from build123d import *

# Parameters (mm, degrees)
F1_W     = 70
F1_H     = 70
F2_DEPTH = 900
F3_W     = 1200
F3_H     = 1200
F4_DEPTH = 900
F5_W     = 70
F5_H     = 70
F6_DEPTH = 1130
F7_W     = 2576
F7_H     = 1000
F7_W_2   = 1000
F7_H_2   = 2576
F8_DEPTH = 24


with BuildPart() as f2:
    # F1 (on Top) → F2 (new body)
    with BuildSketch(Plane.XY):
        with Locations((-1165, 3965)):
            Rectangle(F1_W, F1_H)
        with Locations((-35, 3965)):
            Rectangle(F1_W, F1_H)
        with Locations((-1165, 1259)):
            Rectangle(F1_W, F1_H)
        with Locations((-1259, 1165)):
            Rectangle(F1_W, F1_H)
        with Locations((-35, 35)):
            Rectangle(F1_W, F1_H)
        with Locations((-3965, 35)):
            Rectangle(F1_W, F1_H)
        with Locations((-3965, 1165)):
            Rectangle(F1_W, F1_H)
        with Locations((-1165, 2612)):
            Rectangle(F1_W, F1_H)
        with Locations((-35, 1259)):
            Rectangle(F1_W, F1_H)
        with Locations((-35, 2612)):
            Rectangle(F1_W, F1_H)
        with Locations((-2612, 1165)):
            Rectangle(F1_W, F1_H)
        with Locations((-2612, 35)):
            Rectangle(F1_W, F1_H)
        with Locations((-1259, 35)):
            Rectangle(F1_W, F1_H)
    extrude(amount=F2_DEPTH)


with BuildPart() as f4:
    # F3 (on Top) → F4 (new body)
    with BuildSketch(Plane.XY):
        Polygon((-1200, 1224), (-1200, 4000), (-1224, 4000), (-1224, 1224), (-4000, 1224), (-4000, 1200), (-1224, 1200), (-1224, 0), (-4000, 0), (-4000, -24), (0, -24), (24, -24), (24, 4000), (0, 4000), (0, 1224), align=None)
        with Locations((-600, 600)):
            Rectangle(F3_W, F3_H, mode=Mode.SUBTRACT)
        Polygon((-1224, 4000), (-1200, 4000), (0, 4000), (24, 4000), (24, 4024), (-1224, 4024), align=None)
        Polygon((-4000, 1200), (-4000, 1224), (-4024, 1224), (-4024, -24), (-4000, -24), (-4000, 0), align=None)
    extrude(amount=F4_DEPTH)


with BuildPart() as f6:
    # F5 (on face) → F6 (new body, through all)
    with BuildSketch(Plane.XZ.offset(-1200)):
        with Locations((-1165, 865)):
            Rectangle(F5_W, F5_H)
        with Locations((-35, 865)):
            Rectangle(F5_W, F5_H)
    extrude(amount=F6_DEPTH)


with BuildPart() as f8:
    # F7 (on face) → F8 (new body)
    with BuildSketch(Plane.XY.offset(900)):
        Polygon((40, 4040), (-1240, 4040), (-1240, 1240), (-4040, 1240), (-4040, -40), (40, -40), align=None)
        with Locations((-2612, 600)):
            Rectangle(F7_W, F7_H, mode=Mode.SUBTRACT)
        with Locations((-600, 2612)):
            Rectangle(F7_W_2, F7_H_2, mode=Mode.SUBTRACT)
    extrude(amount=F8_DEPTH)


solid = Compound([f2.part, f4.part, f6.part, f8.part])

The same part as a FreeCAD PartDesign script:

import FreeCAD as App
import Part
import Sketcher

V = App.Vector


def add_polygon(sketch, points):
    """Adds a closed chain of lines whose ends are joined by coincident constraints."""
    first, n = sketch.GeometryCount, len(points)
    for a, b in zip(points, points[1:] + points[:1]):
        sketch.addGeometry(Part.LineSegment(App.Vector(*a, 0), App.Vector(*b, 0)), False)
    for i in range(n):
        sketch.addConstraint(Sketcher.Constraint("Coincident", first + i, 2, first + (i + 1) % n, 1))

doc = App.newDocument("Part")
body = doc.addObject("PartDesign::Body", "Body")
body.AllowCompound = True

sketch1 = body.newObject("Sketcher::SketchObject", "Sketch")
sketch1.AttachmentSupport = (doc.getObject("XY_Plane"), [""])
sketch1.MapMode = "FlatFace"
add_polygon(sketch1, [(-1200, 4000), (-1200, 3930), (-1130, 3930), (-1130, 4000)])
add_polygon(sketch1, [(-70, 4000), (-70, 3930), (0, 3930), (0, 4000)])
add_polygon(sketch1, [(-1200, 1294), (-1200, 1224), (-1130, 1224), (-1130, 1294)])
add_polygon(sketch1, [(-1294, 1200), (-1294, 1130), (-1224, 1130), (-1224, 1200)])
add_polygon(sketch1, [(-70, 70), (-70, 0), (0, 0), (0, 70)])
add_polygon(sketch1, [(-4000, 70), (-4000, 0), (-3930, 0), (-3930, 70)])
add_polygon(sketch1, [(-4000, 1200), (-4000, 1130), (-3930, 1130), (-3930, 1200)])
add_polygon(sketch1, [(-1200, 2647), (-1200, 2577), (-1130, 2577), (-1130, 2647)])
add_polygon(sketch1, [(-70, 1294), (-70, 1224), (0, 1224), (0, 1294)])
add_polygon(sketch1, [(-70, 2647), (-70, 2577), (0, 2577), (0, 2647)])
add_polygon(sketch1, [(-2647, 1200), (-2647, 1130), (-2577, 1130), (-2577, 1200)])
add_polygon(sketch1, [(-2647, 70), (-2647, 0), (-2577, 0), (-2577, 70)])
add_polygon(sketch1, [(-1294, 70), (-1294, 0), (-1224, 0), (-1224, 70)])
sketch1.addConstraint(Sketcher.Constraint("Vertical", 0))
sketch1.addConstraint(Sketcher.Constraint("Horizontal", 1))
sketch1.addConstraint(Sketcher.Constraint("Vertical", 2))
sketch1.addConstraint(Sketcher.Constraint("Horizontal", 3))
sketch1.addConstraint(Sketcher.Constraint("Vertical", 4))
sketch1.addConstraint(Sketcher.Constraint("Horizontal", 5))
sketch1.addConstraint(Sketcher.Constraint("Vertical", 6))
sketch1.addConstraint(Sketcher.Constraint("Horizontal", 7))
sketch1.addConstraint(Sketcher.Constraint("Vertical", 8))
sketch1.addConstraint(Sketcher.Constraint("Horizontal", 9))
sketch1.addConstraint(Sketcher.Constraint("Vertical", 10))
sketch1.addConstraint(Sketcher.Constraint("Horizontal", 11))
sketch1.addConstraint(Sketcher.Constraint("Vertical", 12))
sketch1.addConstraint(Sketcher.Constraint("Horizontal", 13))
sketch1.addConstraint(Sketcher.Constraint("Vertical", 14))
sketch1.addConstraint(Sketcher.Constraint("Horizontal", 15))
sketch1.addConstraint(Sketcher.Constraint("Vertical", 16))
sketch1.addConstraint(Sketcher.Constraint("Horizontal", 17))
sketch1.addConstraint(Sketcher.Constraint("Vertical", 18))
sketch1.addConstraint(Sketcher.Constraint("Horizontal", 19))
sketch1.addConstraint(Sketcher.Constraint("Vertical", 20))
sketch1.addConstraint(Sketcher.Constraint("Horizontal", 21))
sketch1.addConstraint(Sketcher.Constraint("Vertical", 22))
sketch1.addConstraint(Sketcher.Constraint("Horizontal", 23))
sketch1.addConstraint(Sketcher.Constraint("Vertical", 24))
sketch1.addConstraint(Sketcher.Constraint("Horizontal", 25))
sketch1.addConstraint(Sketcher.Constraint("Vertical", 26))
sketch1.addConstraint(Sketcher.Constraint("Horizontal", 27))
sketch1.addConstraint(Sketcher.Constraint("Vertical", 28))
sketch1.addConstraint(Sketcher.Constraint("Horizontal", 29))
sketch1.addConstraint(Sketcher.Constraint("Vertical", 30))
sketch1.addConstraint(Sketcher.Constraint("Horizontal", 31))
sketch1.addConstraint(Sketcher.Constraint("Vertical", 32))
sketch1.addConstraint(Sketcher.Constraint("Horizontal", 33))
sketch1.addConstraint(Sketcher.Constraint("Vertical", 34))
sketch1.addConstraint(Sketcher.Constraint("Horizontal", 35))
sketch1.addConstraint(Sketcher.Constraint("Vertical", 36))
sketch1.addConstraint(Sketcher.Constraint("Horizontal", 37))
sketch1.addConstraint(Sketcher.Constraint("Vertical", 38))
sketch1.addConstraint(Sketcher.Constraint("Horizontal", 39))
sketch1.addConstraint(Sketcher.Constraint("Vertical", 40))
sketch1.addConstraint(Sketcher.Constraint("Horizontal", 41))
sketch1.addConstraint(Sketcher.Constraint("Vertical", 42))
sketch1.addConstraint(Sketcher.Constraint("Horizontal", 43))
sketch1.addConstraint(Sketcher.Constraint("Vertical", 44))
sketch1.addConstraint(Sketcher.Constraint("Horizontal", 45))
sketch1.addConstraint(Sketcher.Constraint("Vertical", 46))
sketch1.addConstraint(Sketcher.Constraint("Horizontal", 47))
sketch1.addConstraint(Sketcher.Constraint("Vertical", 48))
sketch1.addConstraint(Sketcher.Constraint("Horizontal", 49))
sketch1.addConstraint(Sketcher.Constraint("Vertical", 50))
sketch1.addConstraint(Sketcher.Constraint("Horizontal", 51))
sketch1.addConstraint(Sketcher.Constraint("Coincident", 17, 2, -1, 1))
sketch1.addConstraint(Sketcher.Constraint("PointOnObject", 5, 2, -2))
sketch1.addConstraint(Sketcher.Constraint("PointOnObject", 20, 2, -1))
sketch1.addConstraint(Sketcher.Constraint("PointOnObject", 33, 2, -2))
sketch1.addConstraint(Sketcher.Constraint("PointOnObject", 37, 2, -2))
sketch1.addConstraint(Sketcher.Constraint("PointOnObject", 44, 2, -1))
sketch1.addConstraint(Sketcher.Constraint("PointOnObject", 48, 2, -1))
sketch1.addConstraint(Sketcher.Constraint("Horizontal", 1, 2, 4, 2))
sketch1.addConstraint(Sketcher.Constraint("Horizontal", 3, 2, 6, 2))
sketch1.addConstraint(Sketcher.Constraint("Horizontal", 19, 2, 22, 2))
sketch1.addConstraint(Sketcher.Constraint("Horizontal", 13, 2, 24, 2))
sketch1.addConstraint(Sketcher.Constraint("Horizontal", 15, 2, 26, 2))
sketch1.addConstraint(Sketcher.Constraint("Horizontal", 9, 2, 32, 2))
sketch1.addConstraint(Sketcher.Constraint("Horizontal", 11, 2, 34, 2))
sketch1.addConstraint(Sketcher.Constraint("Horizontal", 29, 2, 36, 2))
sketch1.addConstraint(Sketcher.Constraint("Horizontal", 31, 2, 38, 2))
sketch1.addConstraint(Sketcher.Constraint("Horizontal", 25, 2, 40, 2))
sketch1.addConstraint(Sketcher.Constraint("Horizontal", 27, 2, 42, 2))
sketch1.addConstraint(Sketcher.Constraint("Horizontal", 23, 2, 46, 2))
sketch1.addConstraint(Sketcher.Constraint("Horizontal", 47, 2, 50, 2))
sketch1.addConstraint(Sketcher.Constraint("Vertical", 3, 2, 8, 2))
sketch1.addConstraint(Sketcher.Constraint("Vertical", 2, 2, 9, 2))
sketch1.addConstraint(Sketcher.Constraint("Vertical", 7, 2, 16, 2))
sketch1.addConstraint(Sketcher.Constraint("Vertical", 23, 2, 24, 2))
sketch1.addConstraint(Sketcher.Constraint("Vertical", 22, 2, 25, 2))
sketch1.addConstraint(Sketcher.Constraint("Vertical", 11, 2, 28, 2))
sketch1.addConstraint(Sketcher.Constraint("Vertical", 10, 2, 29, 2))
sketch1.addConstraint(Sketcher.Constraint("Vertical", 19, 2, 32, 2))
sketch1.addConstraint(Sketcher.Constraint("Vertical", 35, 2, 36, 2))
sketch1.addConstraint(Sketcher.Constraint("Vertical", 43, 2, 44, 2))
sketch1.addConstraint(Sketcher.Constraint("Vertical", 42, 2, 45, 2))
sketch1.addConstraint(Sketcher.Constraint("Vertical", 15, 2, 48, 2))
sketch1.addConstraint(Sketcher.Constraint("Vertical", 14, 2, 49, 2))
sketch1.addConstraint(Sketcher.Constraint("Equal", 3, 5))
sketch1.addConstraint(Sketcher.Constraint("Equal", 11, 13))
sketch1.addConstraint(Sketcher.Constraint("Equal", 19, 21))
sketch1.addConstraint(Sketcher.Constraint("Equal", 39, 41))
sketch1.addConstraint(Sketcher.Constraint("Equal", 51, 0))
sketch1.addConstraint(Sketcher.Constraint("Equal", 6, 8))
sketch1.addConstraint(Sketcher.Constraint("Equal", 10, 12))
sketch1.addConstraint(Sketcher.Constraint("Equal", 14, 16))
sketch1.addConstraint(Sketcher.Constraint("Equal", 26, 28))
sketch1.addConstraint(Sketcher.Constraint("DistanceX", 1, 1, 1, 2, 70.0))
sketch1.addConstraint(Sketcher.Constraint("DistanceX", 0, 2, -1, 1, 1200.0))
sketch1.addConstraint(Sketcher.Constraint("DistanceY", -1, 1, 0, 2, 3930.0))
sketch1.addConstraint(Sketcher.Constraint("DistanceY", -1, 1, 8, 2, 1224.0))
sketch1.addConstraint(Sketcher.Constraint("DistanceX", 12, 2, -1, 1, 1294.0))
sketch1.addConstraint(Sketcher.Constraint("DistanceY", -1, 1, 12, 2, 1130.0))
sketch1.addConstraint(Sketcher.Constraint("DistanceX", 20, 2, -1, 1, 4000.0))
sketch1.addConstraint(Sketcher.Constraint("DistanceY", -1, 1, 28, 2, 2577.0))
sketch1.addConstraint(Sketcher.Constraint("DistanceX", 40, 2, -1, 1, 2647.0))
pad1 = body.newObject("PartDesign::Pad", "Pad")
pad1.Profile = sketch1
pad1.Length = 900
body2 = doc.addObject("PartDesign::Body", "Body001")

sketch2 = body2.newObject("Sketcher::SketchObject", "Sketch001")
sketch2.AttachmentSupport = (doc.getObject("XY_Plane001"), [""])
sketch2.MapMode = "FlatFace"
add_polygon(sketch2, [(-1224, 1224), (-4024, 1224), (-4024, -24), (24, -24), (24, 4024), (-1224, 4024)])
add_polygon(sketch2, [(-1200, 1224), (-1200, 4000), (0, 4000), (0, 1224)])
add_polygon(sketch2, [(-4000, 1200), (-1224, 1200), (-1224, 0), (-4000, 0)])
add_polygon(sketch2, [(0, 0), (-1200, 0), (-1200, 1200), (0, 1200)])
sketch2.addConstraint(Sketcher.Constraint("Horizontal", 0))
sketch2.addConstraint(Sketcher.Constraint("Vertical", 1))
sketch2.addConstraint(Sketcher.Constraint("Horizontal", 2))
sketch2.addConstraint(Sketcher.Constraint("Vertical", 3))
sketch2.addConstraint(Sketcher.Constraint("Horizontal", 4))
sketch2.addConstraint(Sketcher.Constraint("Vertical", 5))
sketch2.addConstraint(Sketcher.Constraint("Vertical", 6))
sketch2.addConstraint(Sketcher.Constraint("Horizontal", 7))
sketch2.addConstraint(Sketcher.Constraint("Vertical", 8))
sketch2.addConstraint(Sketcher.Constraint("Horizontal", 9))
sketch2.addConstraint(Sketcher.Constraint("Horizontal", 10))
sketch2.addConstraint(Sketcher.Constraint("Vertical", 11))
sketch2.addConstraint(Sketcher.Constraint("Horizontal", 12))
sketch2.addConstraint(Sketcher.Constraint("Vertical", 13))
sketch2.addConstraint(Sketcher.Constraint("Horizontal", 14))
sketch2.addConstraint(Sketcher.Constraint("Vertical", 15))
sketch2.addConstraint(Sketcher.Constraint("Horizontal", 16))
sketch2.addConstraint(Sketcher.Constraint("Vertical", 17))
sketch2.addConstraint(Sketcher.Constraint("Coincident", 17, 2, -1, 1))
sketch2.addConstraint(Sketcher.Constraint("PointOnObject", 7, 2, -2))
sketch2.addConstraint(Sketcher.Constraint("PointOnObject", 11, 2, -1))
sketch2.addConstraint(Sketcher.Constraint("Horizontal", 5, 2, 8, 2))
sketch2.addConstraint(Sketcher.Constraint("Horizontal", 13, 2, 15, 2))
sketch2.addConstraint(Sketcher.Constraint("Vertical", 5, 2, 10, 2))
sketch2.addConstraint(Sketcher.Constraint("Vertical", 9, 2, 14, 2))
sketch2.addConstraint(Sketcher.Constraint("Equal", 4, 1))
sketch2.addConstraint(Sketcher.Constraint("Equal", 2, 3))
sketch2.addConstraint(Sketcher.Constraint("Equal", 12, 6))
sketch2.addConstraint(Sketcher.Constraint("Equal", 16, 11))
sketch2.addConstraint(Sketcher.Constraint("DistanceX", 0, 2, 0, 1, 2800.0))
sketch2.addConstraint(Sketcher.Constraint("DistanceX", 2, 1, 2, 2, 4048.0))
sketch2.addConstraint(Sketcher.Constraint("DistanceX", 7, 1, 7, 2, 1200.0))
sketch2.addConstraint(Sketcher.Constraint("DistanceX", 10, 1, 10, 2, 2776.0))
sketch2.addConstraint(Sketcher.Constraint("DistanceX", 0, 2, -1, 1, 4024.0))
sketch2.addConstraint(Sketcher.Constraint("DistanceY", -1, 1, 0, 2, 1224.0))
pad2 = body2.newObject("PartDesign::Pad", "Pad001")
pad2.Profile = sketch2
pad2.Length = 900
body3 = doc.addObject("PartDesign::Body", "Body002")
body3.AllowCompound = True

sketch3 = body3.newObject("Sketcher::SketchObject", "Sketch002")
sketch3.AttachmentSupport = (doc.getObject("XZ_Plane002"), [""])
sketch3.MapMode = "FlatFace"
sketch3.AttachmentOffset = App.Placement(V(0, 0, -1200), App.Rotation())
add_polygon(sketch3, [(-1200, 900), (-1200, 830), (-1130, 830), (-1130, 900)])
add_polygon(sketch3, [(-70, 900), (-70, 830), (0, 830), (0, 900)])
sketch3.addConstraint(Sketcher.Constraint("Vertical", 0))
sketch3.addConstraint(Sketcher.Constraint("Horizontal", 1))
sketch3.addConstraint(Sketcher.Constraint("Vertical", 2))
sketch3.addConstraint(Sketcher.Constraint("Horizontal", 3))
sketch3.addConstraint(Sketcher.Constraint("Vertical", 4))
sketch3.addConstraint(Sketcher.Constraint("Horizontal", 5))
sketch3.addConstraint(Sketcher.Constraint("Vertical", 6))
sketch3.addConstraint(Sketcher.Constraint("Horizontal", 7))
sketch3.addConstraint(Sketcher.Constraint("PointOnObject", 5, 2, -2))
sketch3.addConstraint(Sketcher.Constraint("Horizontal", 1, 2, 4, 2))
sketch3.addConstraint(Sketcher.Constraint("Horizontal", 3, 2, 6, 2))
sketch3.addConstraint(Sketcher.Constraint("Equal", 3, 5))
sketch3.addConstraint(Sketcher.Constraint("Equal", 7, 0))
sketch3.addConstraint(Sketcher.Constraint("DistanceX", 1, 1, 1, 2, 70.0))
sketch3.addConstraint(Sketcher.Constraint("DistanceX", 0, 2, -1, 1, 1200.0))
sketch3.addConstraint(Sketcher.Constraint("DistanceY", -1, 1, 0, 2, 830.0))
pad3 = body3.newObject("PartDesign::Pad", "Pad002")
pad3.Profile = sketch3
pad3.Length = 1130
body4 = doc.addObject("PartDesign::Body", "Body003")

sketch4 = body4.newObject("Sketcher::SketchObject", "Sketch003")
sketch4.AttachmentSupport = (doc.getObject("XY_Plane003"), [""])
sketch4.MapMode = "FlatFace"
sketch4.AttachmentOffset = App.Placement(V(0, 0, 900), App.Rotation())
add_polygon(sketch4, [(40, 4040), (-1240, 4040), (-1240, 1240), (-4040, 1240), (-4040, -40), (40, -40)])
add_polygon(sketch4, [(-1324, 100), (-3900, 100), (-3900, 1100), (-1324, 1100)])
add_polygon(sketch4, [(-100, 1324), (-1100, 1324), (-1100, 3900), (-100, 3900)])
sketch4.addConstraint(Sketcher.Constraint("Horizontal", 0))
sketch4.addConstraint(Sketcher.Constraint("Vertical", 1))
sketch4.addConstraint(Sketcher.Constraint("Horizontal", 2))
sketch4.addConstraint(Sketcher.Constraint("Vertical", 3))
sketch4.addConstraint(Sketcher.Constraint("Horizontal", 4))
sketch4.addConstraint(Sketcher.Constraint("Vertical", 5))
sketch4.addConstraint(Sketcher.Constraint("Horizontal", 6))
sketch4.addConstraint(Sketcher.Constraint("Vertical", 7))
sketch4.addConstraint(Sketcher.Constraint("Horizontal", 8))
sketch4.addConstraint(Sketcher.Constraint("Vertical", 9))
sketch4.addConstraint(Sketcher.Constraint("Horizontal", 10))
sketch4.addConstraint(Sketcher.Constraint("Vertical", 11))
sketch4.addConstraint(Sketcher.Constraint("Horizontal", 12))
sketch4.addConstraint(Sketcher.Constraint("Vertical", 13))
sketch4.addConstraint(Sketcher.Constraint("Equal", 2, 1))
sketch4.addConstraint(Sketcher.Constraint("Equal", 0, 3))
sketch4.addConstraint(Sketcher.Constraint("Equal", 12, 7))
sketch4.addConstraint(Sketcher.Constraint("Equal", 8, 11))
sketch4.addConstraint(Sketcher.Constraint("DistanceX", 0, 2, 0, 1, 1280.0))
sketch4.addConstraint(Sketcher.Constraint("DistanceX", 2, 2, 2, 1, 2800.0))
sketch4.addConstraint(Sketcher.Constraint("DistanceX", 6, 2, 6, 1, 2576.0))
sketch4.addConstraint(Sketcher.Constraint("DistanceX", 10, 2, 10, 1, 1000.0))
sketch4.addConstraint(Sketcher.Constraint("DistanceX", 0, 2, -1, 1, 1240.0))
sketch4.addConstraint(Sketcher.Constraint("DistanceY", -1, 1, 0, 2, 4040.0))
sketch4.addConstraint(Sketcher.Constraint("DistanceX", 6, 2, -1, 1, 3900.0))
sketch4.addConstraint(Sketcher.Constraint("DistanceY", -1, 1, 6, 2, 100.0))
sketch4.addConstraint(Sketcher.Constraint("DistanceX", 10, 2, -1, 1, 1100.0))
sketch4.addConstraint(Sketcher.Constraint("DistanceY", -1, 1, 10, 2, 1324.0))
pad4 = body4.newObject("PartDesign::Pad", "Pad003")
pad4.Profile = sketch4
pad4.Length = 24

doc.recompute()
